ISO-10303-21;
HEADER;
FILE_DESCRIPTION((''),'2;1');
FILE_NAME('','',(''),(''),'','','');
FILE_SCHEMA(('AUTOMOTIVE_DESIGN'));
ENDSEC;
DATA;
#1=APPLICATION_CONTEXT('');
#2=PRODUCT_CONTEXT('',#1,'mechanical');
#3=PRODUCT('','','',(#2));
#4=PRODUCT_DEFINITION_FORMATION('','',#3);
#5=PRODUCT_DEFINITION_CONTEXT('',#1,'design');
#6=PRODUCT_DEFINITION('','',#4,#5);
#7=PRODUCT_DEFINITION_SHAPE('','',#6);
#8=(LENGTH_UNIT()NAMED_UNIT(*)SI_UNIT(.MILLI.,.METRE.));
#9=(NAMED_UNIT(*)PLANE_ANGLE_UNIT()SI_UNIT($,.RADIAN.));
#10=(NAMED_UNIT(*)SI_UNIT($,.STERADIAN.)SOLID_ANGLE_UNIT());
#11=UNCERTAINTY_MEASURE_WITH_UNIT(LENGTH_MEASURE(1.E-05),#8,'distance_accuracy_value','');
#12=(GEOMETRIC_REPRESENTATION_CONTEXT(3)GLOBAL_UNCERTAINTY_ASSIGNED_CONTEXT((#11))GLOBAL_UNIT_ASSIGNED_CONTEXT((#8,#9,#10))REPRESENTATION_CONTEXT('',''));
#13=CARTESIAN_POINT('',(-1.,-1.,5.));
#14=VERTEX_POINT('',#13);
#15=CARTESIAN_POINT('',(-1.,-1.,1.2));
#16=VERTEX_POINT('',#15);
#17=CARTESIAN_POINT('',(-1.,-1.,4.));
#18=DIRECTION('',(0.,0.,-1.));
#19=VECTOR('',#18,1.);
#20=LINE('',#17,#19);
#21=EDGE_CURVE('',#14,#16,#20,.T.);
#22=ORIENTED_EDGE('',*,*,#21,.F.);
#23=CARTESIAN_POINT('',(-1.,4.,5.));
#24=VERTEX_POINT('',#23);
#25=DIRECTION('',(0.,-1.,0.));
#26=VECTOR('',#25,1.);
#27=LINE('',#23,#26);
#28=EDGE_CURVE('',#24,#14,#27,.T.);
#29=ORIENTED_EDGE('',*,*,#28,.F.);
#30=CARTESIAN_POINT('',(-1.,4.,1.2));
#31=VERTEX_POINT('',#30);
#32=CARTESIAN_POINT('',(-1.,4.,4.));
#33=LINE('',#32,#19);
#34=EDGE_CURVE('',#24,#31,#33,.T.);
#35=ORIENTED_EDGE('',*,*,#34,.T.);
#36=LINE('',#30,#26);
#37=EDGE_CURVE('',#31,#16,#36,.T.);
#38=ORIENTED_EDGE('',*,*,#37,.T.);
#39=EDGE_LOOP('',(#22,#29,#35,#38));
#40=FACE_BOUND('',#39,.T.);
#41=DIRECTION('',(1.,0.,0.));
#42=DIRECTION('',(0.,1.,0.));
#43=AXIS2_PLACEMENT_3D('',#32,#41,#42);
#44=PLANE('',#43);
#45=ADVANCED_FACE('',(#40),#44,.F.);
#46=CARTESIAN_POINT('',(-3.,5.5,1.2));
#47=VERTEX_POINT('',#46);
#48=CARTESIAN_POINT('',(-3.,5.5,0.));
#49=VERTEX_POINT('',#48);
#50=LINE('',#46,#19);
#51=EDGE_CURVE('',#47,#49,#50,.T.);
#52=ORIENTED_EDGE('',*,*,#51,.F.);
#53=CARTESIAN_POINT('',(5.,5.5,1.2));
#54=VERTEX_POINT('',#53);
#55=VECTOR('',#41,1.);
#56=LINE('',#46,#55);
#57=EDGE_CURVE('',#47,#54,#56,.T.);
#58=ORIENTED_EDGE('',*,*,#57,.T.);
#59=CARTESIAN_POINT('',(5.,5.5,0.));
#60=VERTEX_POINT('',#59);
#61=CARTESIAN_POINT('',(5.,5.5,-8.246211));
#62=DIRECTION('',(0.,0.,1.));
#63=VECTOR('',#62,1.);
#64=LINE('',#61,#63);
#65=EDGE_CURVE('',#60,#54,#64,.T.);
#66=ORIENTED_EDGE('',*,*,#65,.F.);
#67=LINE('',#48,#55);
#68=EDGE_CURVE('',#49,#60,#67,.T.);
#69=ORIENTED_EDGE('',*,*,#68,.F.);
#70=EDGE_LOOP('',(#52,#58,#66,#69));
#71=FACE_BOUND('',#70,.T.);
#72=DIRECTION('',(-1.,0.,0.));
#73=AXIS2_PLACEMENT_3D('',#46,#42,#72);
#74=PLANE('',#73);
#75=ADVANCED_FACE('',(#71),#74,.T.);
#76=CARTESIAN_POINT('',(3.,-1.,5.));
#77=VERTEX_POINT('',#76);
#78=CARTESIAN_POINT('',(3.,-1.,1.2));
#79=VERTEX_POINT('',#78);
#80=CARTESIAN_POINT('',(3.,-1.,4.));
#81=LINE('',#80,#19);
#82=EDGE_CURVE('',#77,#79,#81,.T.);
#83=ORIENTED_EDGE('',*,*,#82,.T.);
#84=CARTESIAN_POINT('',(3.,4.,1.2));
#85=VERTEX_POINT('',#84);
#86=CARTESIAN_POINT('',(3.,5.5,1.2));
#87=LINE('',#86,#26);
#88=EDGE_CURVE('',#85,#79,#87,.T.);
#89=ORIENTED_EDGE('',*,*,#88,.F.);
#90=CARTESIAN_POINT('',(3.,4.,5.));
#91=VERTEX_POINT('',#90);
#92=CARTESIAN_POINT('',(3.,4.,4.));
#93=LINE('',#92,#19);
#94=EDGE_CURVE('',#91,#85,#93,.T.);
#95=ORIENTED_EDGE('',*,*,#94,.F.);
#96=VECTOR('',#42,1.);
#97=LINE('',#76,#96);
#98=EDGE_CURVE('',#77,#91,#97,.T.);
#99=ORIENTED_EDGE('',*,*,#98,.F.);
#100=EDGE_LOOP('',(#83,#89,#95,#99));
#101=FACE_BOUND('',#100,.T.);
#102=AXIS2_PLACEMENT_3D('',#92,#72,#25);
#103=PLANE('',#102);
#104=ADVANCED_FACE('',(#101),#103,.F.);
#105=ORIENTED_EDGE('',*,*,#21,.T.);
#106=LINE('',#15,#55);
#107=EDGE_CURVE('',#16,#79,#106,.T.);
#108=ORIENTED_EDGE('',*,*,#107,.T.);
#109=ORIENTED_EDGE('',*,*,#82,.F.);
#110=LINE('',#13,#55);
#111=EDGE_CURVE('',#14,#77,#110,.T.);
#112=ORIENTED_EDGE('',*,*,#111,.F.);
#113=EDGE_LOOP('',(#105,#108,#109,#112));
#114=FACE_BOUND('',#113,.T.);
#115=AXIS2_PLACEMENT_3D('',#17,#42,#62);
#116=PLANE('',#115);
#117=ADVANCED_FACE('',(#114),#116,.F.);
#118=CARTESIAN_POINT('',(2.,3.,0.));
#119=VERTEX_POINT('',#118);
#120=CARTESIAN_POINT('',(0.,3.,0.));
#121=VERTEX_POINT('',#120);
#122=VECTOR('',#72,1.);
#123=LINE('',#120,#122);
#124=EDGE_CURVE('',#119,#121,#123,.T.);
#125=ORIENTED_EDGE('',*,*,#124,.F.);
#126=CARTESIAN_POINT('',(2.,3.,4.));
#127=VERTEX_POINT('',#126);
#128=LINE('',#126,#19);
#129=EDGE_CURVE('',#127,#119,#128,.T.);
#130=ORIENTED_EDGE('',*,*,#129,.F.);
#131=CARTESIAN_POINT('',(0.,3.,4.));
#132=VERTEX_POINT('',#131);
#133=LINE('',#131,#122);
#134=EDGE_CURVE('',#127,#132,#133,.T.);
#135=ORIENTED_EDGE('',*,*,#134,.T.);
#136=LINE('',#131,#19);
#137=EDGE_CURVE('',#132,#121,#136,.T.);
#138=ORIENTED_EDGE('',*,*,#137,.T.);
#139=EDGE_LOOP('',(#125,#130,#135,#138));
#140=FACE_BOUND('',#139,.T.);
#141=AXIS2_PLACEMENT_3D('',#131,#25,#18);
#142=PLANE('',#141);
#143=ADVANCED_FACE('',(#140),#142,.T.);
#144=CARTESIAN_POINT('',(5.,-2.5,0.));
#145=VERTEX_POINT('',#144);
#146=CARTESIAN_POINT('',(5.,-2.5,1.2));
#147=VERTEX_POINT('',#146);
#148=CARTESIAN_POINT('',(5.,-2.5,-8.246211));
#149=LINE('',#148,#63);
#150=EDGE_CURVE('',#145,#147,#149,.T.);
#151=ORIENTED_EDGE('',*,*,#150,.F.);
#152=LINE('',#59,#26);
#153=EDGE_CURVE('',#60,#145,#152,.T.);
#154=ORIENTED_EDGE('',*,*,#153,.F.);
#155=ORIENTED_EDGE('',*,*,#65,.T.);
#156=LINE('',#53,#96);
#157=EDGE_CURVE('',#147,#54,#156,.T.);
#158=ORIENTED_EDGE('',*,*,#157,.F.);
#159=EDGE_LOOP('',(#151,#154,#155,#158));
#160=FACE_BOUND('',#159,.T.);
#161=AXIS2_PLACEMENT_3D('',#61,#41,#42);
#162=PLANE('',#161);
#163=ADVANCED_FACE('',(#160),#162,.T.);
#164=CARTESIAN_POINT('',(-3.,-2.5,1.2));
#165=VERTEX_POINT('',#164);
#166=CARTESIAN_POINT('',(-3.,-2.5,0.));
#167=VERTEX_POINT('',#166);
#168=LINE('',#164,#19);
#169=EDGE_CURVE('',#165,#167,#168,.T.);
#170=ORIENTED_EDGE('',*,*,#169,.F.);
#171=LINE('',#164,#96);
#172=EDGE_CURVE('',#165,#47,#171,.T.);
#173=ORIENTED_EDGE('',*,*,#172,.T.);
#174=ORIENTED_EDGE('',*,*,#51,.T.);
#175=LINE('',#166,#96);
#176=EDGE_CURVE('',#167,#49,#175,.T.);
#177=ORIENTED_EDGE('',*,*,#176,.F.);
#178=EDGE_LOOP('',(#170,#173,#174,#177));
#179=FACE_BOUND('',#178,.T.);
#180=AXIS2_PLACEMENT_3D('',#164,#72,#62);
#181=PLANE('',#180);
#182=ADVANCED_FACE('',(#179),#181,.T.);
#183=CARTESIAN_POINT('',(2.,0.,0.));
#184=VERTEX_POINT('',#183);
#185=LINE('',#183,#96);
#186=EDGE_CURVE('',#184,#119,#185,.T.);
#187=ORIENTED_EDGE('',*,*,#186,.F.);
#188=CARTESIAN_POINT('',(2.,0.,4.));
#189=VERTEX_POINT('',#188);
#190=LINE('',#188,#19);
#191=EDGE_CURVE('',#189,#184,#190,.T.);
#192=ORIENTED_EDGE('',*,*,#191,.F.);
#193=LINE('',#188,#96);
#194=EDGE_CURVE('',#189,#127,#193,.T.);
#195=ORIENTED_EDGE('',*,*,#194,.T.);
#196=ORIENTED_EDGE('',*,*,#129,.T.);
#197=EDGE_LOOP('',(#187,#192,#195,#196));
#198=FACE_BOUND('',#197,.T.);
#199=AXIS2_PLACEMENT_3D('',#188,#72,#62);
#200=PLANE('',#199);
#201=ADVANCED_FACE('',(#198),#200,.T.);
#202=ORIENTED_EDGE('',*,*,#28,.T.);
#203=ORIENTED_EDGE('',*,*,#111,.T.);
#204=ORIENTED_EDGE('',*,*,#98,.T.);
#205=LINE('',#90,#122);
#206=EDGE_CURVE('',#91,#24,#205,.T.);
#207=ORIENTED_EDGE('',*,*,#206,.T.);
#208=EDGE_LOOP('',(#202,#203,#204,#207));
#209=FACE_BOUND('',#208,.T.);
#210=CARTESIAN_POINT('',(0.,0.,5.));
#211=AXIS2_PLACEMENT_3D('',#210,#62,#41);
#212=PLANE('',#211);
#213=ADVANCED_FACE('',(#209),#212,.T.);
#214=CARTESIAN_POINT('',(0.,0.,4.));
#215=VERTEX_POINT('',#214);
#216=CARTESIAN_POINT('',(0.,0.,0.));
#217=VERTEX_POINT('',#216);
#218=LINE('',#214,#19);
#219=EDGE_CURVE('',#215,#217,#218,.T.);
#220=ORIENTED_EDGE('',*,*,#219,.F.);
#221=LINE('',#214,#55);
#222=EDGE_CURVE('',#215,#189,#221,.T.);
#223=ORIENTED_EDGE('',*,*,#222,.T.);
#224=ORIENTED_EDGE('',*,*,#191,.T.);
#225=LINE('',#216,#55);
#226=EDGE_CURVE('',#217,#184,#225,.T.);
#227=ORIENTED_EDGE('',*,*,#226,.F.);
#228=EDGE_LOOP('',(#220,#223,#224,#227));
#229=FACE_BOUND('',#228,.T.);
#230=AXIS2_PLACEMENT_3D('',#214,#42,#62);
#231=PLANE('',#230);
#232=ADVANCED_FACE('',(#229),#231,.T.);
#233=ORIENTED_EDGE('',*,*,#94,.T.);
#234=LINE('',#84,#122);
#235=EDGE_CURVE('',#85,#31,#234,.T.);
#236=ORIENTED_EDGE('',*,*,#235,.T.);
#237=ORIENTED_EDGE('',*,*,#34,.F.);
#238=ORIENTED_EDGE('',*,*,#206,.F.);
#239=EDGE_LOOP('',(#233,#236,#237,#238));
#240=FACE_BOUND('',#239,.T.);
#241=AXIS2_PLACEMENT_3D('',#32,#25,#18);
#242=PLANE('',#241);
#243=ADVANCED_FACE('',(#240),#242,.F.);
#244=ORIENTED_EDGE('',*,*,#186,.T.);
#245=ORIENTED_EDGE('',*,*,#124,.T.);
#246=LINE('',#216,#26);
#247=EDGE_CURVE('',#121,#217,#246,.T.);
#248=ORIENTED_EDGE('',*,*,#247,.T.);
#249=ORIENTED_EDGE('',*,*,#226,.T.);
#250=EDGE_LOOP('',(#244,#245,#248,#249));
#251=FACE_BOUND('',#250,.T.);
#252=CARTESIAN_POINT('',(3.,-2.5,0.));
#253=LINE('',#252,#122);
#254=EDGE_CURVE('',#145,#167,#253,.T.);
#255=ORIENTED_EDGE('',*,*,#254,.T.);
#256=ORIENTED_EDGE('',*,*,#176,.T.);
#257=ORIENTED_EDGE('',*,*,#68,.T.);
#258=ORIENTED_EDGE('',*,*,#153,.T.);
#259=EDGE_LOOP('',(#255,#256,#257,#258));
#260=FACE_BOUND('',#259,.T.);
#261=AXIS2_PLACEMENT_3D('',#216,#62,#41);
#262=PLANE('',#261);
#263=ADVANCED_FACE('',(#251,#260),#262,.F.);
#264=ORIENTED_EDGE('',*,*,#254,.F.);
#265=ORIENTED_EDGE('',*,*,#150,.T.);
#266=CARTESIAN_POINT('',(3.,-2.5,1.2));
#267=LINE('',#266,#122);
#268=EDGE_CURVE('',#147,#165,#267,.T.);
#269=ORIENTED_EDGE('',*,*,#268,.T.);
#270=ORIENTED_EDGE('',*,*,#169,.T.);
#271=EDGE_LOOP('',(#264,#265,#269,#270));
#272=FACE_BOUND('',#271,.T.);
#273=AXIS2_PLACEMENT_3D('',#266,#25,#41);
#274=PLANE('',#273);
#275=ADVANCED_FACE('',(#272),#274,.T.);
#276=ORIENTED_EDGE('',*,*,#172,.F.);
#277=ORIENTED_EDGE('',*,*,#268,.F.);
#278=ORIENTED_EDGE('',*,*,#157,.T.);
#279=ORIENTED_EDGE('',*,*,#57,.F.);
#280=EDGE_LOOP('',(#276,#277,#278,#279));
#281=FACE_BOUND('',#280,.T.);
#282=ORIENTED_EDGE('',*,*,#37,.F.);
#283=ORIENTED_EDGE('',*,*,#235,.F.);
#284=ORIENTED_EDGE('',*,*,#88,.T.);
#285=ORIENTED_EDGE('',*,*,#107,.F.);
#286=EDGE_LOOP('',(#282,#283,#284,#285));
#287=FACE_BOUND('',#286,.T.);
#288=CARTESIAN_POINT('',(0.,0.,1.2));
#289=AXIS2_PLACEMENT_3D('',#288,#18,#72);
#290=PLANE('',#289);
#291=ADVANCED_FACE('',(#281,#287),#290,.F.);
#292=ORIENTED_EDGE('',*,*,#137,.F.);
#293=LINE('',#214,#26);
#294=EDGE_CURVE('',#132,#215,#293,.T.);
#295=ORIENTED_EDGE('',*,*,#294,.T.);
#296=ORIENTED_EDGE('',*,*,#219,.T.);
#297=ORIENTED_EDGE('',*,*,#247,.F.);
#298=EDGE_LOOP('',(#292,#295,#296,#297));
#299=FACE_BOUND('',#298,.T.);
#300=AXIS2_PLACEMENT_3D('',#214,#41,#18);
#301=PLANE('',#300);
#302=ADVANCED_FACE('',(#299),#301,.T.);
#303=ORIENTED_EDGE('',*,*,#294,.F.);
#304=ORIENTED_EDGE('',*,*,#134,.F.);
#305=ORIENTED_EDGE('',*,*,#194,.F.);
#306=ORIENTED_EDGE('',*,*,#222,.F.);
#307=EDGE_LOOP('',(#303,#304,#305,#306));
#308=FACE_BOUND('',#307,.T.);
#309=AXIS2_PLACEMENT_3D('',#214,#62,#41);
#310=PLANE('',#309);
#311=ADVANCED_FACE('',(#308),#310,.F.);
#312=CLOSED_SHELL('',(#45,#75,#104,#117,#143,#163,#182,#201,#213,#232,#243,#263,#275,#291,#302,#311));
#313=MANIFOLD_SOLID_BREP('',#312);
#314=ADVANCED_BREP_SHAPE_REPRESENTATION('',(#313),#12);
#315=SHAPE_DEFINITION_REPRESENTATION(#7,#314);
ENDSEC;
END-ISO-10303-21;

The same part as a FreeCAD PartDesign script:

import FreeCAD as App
import Part
import Sketcher
Q = App.Units.Quantity


def add_polygon(sketch, points):
    """Adds a closed chain of lines whose ends are joined by coincident constraints."""
    first, n = sketch.GeometryCount, len(points)
    for a, b in zip(points, points[1:] + points[:1]):
        sketch.addGeometry(Part.LineSegment(App.Vector(*a, 0), App.Vector(*b, 0)), False)
    for i in range(n):
        sketch.addConstraint(Sketcher.Constraint("Coincident", first + i, 2, first + (i + 1) % n, 1))

doc = App.newDocument("Part")
body = doc.addObject("PartDesign::Body", "Body")

sketch1 = body.newObject("Sketcher::SketchObject", "Sketch")
sketch1.AttachmentSupport = (doc.getObject("XY_Plane"), [""])
sketch1.MapMode = "FlatFace"
add_polygon(sketch1, [(-1, 4), (-1, -1), (3, -1), (3, 4)])
add_polygon(sketch1, [(2, 0), (0, 0), (0, 3), (2, 3)])
sketch1.addConstraint(Sketcher.Constraint("Vertical", 0))
sketch1.addConstraint(Sketcher.Constraint("Horizontal", 1))
sketch1.addConstraint(Sketcher.Constraint("Vertical", 2))
sketch1.addConstraint(Sketcher.Constraint("Horizontal", 3))
sketch1.addConstraint(Sketcher.Constraint("Horizontal", 4))
sketch1.addConstraint(Sketcher.Constraint("Vertical", 5))
sketch1.addConstraint(Sketcher.Constraint("Horizontal", 6))
sketch1.addConstraint(Sketcher.Constraint("Vertical", 7))
sketch1.addConstraint(Sketcher.Constraint("Coincident", 4, 2, -1, 1))
sketch1.addConstraint(Sketcher.Constraint("DistanceX", 1, 1, 1, 2, Q("4 mm")))
sketch1.addConstraint(Sketcher.Constraint("DistanceX", 4, 2, 4, 1, Q("2 mm")))
sketch1.addConstraint(Sketcher.Constraint("DistanceY", 0, 2, 0, 1, Q("5 mm")))
sketch1.addConstraint(Sketcher.Constraint("DistanceY", 5, 1, 5, 2, Q("3 mm")))
sketch1.addConstraint(Sketcher.Constraint("DistanceX", 0, 2, -1, 1, Q("1 mm")))
sketch1.addConstraint(Sketcher.Constraint("DistanceY", 0, 2, -1, 1, Q("1 mm")))
pad1 = body.newObject("PartDesign::Pad", "Pad")
pad1.Profile = sketch1
pad1.Length = 4

sketch2 = body.newObject("Sketcher::SketchObject", "Sketch001")
sketch2.AttachmentSupport = (doc.getObject("XY_Plane"), [""])
sketch2.MapMode = "FlatFace"
add_polygon(sketch2, [(3, 4), (-1, 4), (-1, -1), (3, -1), (3, -2.5), (-3, -2.5), (-3, 5.5), (3, 5.5)])
sketch2.addConstraint(Sketcher.Constraint("Horizontal", 0))
sketch2.addConstraint(Sketcher.Constraint("Vertical", 1))
sketch2.addConstraint(Sketcher.Constraint("Horizontal", 2))
sketch2.addConstraint(Sketcher.Constraint("Vertical", 3))
sketch2.addConstraint(Sketcher.Constraint("Horizontal", 4))
sketch2.addConstraint(Sketcher.Constraint("Vertical", 5))
sketch2.addConstraint(Sketcher.Constraint("Horizontal", 6))
sketch2.addConstraint(Sketcher.Constraint("Vertical", 7))
sketch2.addConstraint(Sketcher.Constraint("Vertical", 3, 2, 6, 2))
sketch2.addConstraint(Sketcher.Constraint("Equal", 3, 7))
sketch2.addConstraint(Sketcher.Constraint("DistanceX", 0, 2, 0, 1, Q("4 mm")))
sketch2.addConstraint(Sketcher.Constraint("DistanceX", 4, 2, 4, 1, Q("6 mm")))
sketch2.addConstraint(Sketcher.Constraint("DistanceY", 1, 2, 1, 1, Q("5 mm")))
sketch2.addConstraint(Sketcher.Constraint("DistanceY", 5, 1, 5, 2, Q("8 mm")))
sketch2.addConstraint(Sketcher.Constraint("DistanceX", 0, 2, -1, 1, Q("1 mm")))
sketch2.addConstraint(Sketcher.Constraint("DistanceY", -1, 1, 0, 2, Q("4 mm")))
pad2 = body.newObject("PartDesign::Pad", "Pad001")
pad2.Profile = sketch2
pad2.Length = 1.2

sketch3 = body.newObject("Sketcher::SketchObject", "Sketch002")
sketch3.AttachmentSupport = (doc.getObject("XY_Plane"), [""])
sketch3.MapMode = "FlatFace"
sketch3.AttachmentOffset = App.Placement(App.Vector(0, 0, 4), App.Rotation())
add_polygon(sketch3, [(-1, 4), (-1, -1), (3, -1), (3, 4)])
sketch3.addConstraint(Sketcher.Constraint("Vertical", 0))
sketch3.addConstraint(Sketcher.Constraint("Horizontal", 1))
sketch3.addConstraint(Sketcher.Constraint("Vertical", 2))
sketch3.addConstraint(Sketcher.Constraint("Horizontal", 3))
sketch3.addConstraint(Sketcher.Constraint("DistanceX", 1, 1, 1, 2, Q("4 mm")))
sketch3.addConstraint(Sketcher.Constraint("DistanceY", 0, 2, 0, 1, Q("5 mm")))
sketch3.addConstraint(Sketcher.Constraint("DistanceX", 0, 2, -1, 1, Q("1 mm")))
sketch3.addConstraint(Sketcher.Constraint("DistanceY", 0, 2, -1, 1, Q("1 mm")))
pad3 = body.newObject("PartDesign::Pad", "Pad002")
pad3.Profile = sketch3
pad3.Length = 1

sketch4 = body.newObject("Sketcher::SketchObject", "Sketch003")
sketch4.AttachmentSupport = (doc.getObject("XY_Plane"), [""])
sketch4.MapMode = "FlatFace"
sketch4.AttachmentOffset = App.Placement(App.Vector(0, 0, 1.2), App.Rotation())
add_polygon(sketch4, [(3, 5.5), (3, -2.5), (5, -2.5), (5, 5.5)])
sketch4.addConstraint(Sketcher.Constraint("Vertical", 0))
sketch4.addConstraint(Sketcher.Constraint("Horizontal", 1))
sketch4.addConstraint(Sketcher.Constraint("Vertical", 2))
sketch4.addConstraint(Sketcher.Constraint("Horizontal", 3))
sketch4.addConstraint(Sketcher.Constraint("DistanceX", 1, 1, 1, 2, Q("2 mm")))
sketch4.addConstraint(Sketcher.Constraint("DistanceY", 0, 2, 0, 1, Q("8 mm")))
sketch4.addConstraint(Sketcher.Constraint("DistanceX", -1, 1, 0, 2, Q("3 mm")))
sketch4.addConstraint(Sketcher.Constraint("DistanceY", 0, 2, -1, 1, Q("2.5 mm")))
pad4 = body.newObject("PartDesign::Pad", "Pad003")
pad4.Profile = sketch4
pad4.Length = 1.2
pad4.Reversed = True

doc.recompute()
